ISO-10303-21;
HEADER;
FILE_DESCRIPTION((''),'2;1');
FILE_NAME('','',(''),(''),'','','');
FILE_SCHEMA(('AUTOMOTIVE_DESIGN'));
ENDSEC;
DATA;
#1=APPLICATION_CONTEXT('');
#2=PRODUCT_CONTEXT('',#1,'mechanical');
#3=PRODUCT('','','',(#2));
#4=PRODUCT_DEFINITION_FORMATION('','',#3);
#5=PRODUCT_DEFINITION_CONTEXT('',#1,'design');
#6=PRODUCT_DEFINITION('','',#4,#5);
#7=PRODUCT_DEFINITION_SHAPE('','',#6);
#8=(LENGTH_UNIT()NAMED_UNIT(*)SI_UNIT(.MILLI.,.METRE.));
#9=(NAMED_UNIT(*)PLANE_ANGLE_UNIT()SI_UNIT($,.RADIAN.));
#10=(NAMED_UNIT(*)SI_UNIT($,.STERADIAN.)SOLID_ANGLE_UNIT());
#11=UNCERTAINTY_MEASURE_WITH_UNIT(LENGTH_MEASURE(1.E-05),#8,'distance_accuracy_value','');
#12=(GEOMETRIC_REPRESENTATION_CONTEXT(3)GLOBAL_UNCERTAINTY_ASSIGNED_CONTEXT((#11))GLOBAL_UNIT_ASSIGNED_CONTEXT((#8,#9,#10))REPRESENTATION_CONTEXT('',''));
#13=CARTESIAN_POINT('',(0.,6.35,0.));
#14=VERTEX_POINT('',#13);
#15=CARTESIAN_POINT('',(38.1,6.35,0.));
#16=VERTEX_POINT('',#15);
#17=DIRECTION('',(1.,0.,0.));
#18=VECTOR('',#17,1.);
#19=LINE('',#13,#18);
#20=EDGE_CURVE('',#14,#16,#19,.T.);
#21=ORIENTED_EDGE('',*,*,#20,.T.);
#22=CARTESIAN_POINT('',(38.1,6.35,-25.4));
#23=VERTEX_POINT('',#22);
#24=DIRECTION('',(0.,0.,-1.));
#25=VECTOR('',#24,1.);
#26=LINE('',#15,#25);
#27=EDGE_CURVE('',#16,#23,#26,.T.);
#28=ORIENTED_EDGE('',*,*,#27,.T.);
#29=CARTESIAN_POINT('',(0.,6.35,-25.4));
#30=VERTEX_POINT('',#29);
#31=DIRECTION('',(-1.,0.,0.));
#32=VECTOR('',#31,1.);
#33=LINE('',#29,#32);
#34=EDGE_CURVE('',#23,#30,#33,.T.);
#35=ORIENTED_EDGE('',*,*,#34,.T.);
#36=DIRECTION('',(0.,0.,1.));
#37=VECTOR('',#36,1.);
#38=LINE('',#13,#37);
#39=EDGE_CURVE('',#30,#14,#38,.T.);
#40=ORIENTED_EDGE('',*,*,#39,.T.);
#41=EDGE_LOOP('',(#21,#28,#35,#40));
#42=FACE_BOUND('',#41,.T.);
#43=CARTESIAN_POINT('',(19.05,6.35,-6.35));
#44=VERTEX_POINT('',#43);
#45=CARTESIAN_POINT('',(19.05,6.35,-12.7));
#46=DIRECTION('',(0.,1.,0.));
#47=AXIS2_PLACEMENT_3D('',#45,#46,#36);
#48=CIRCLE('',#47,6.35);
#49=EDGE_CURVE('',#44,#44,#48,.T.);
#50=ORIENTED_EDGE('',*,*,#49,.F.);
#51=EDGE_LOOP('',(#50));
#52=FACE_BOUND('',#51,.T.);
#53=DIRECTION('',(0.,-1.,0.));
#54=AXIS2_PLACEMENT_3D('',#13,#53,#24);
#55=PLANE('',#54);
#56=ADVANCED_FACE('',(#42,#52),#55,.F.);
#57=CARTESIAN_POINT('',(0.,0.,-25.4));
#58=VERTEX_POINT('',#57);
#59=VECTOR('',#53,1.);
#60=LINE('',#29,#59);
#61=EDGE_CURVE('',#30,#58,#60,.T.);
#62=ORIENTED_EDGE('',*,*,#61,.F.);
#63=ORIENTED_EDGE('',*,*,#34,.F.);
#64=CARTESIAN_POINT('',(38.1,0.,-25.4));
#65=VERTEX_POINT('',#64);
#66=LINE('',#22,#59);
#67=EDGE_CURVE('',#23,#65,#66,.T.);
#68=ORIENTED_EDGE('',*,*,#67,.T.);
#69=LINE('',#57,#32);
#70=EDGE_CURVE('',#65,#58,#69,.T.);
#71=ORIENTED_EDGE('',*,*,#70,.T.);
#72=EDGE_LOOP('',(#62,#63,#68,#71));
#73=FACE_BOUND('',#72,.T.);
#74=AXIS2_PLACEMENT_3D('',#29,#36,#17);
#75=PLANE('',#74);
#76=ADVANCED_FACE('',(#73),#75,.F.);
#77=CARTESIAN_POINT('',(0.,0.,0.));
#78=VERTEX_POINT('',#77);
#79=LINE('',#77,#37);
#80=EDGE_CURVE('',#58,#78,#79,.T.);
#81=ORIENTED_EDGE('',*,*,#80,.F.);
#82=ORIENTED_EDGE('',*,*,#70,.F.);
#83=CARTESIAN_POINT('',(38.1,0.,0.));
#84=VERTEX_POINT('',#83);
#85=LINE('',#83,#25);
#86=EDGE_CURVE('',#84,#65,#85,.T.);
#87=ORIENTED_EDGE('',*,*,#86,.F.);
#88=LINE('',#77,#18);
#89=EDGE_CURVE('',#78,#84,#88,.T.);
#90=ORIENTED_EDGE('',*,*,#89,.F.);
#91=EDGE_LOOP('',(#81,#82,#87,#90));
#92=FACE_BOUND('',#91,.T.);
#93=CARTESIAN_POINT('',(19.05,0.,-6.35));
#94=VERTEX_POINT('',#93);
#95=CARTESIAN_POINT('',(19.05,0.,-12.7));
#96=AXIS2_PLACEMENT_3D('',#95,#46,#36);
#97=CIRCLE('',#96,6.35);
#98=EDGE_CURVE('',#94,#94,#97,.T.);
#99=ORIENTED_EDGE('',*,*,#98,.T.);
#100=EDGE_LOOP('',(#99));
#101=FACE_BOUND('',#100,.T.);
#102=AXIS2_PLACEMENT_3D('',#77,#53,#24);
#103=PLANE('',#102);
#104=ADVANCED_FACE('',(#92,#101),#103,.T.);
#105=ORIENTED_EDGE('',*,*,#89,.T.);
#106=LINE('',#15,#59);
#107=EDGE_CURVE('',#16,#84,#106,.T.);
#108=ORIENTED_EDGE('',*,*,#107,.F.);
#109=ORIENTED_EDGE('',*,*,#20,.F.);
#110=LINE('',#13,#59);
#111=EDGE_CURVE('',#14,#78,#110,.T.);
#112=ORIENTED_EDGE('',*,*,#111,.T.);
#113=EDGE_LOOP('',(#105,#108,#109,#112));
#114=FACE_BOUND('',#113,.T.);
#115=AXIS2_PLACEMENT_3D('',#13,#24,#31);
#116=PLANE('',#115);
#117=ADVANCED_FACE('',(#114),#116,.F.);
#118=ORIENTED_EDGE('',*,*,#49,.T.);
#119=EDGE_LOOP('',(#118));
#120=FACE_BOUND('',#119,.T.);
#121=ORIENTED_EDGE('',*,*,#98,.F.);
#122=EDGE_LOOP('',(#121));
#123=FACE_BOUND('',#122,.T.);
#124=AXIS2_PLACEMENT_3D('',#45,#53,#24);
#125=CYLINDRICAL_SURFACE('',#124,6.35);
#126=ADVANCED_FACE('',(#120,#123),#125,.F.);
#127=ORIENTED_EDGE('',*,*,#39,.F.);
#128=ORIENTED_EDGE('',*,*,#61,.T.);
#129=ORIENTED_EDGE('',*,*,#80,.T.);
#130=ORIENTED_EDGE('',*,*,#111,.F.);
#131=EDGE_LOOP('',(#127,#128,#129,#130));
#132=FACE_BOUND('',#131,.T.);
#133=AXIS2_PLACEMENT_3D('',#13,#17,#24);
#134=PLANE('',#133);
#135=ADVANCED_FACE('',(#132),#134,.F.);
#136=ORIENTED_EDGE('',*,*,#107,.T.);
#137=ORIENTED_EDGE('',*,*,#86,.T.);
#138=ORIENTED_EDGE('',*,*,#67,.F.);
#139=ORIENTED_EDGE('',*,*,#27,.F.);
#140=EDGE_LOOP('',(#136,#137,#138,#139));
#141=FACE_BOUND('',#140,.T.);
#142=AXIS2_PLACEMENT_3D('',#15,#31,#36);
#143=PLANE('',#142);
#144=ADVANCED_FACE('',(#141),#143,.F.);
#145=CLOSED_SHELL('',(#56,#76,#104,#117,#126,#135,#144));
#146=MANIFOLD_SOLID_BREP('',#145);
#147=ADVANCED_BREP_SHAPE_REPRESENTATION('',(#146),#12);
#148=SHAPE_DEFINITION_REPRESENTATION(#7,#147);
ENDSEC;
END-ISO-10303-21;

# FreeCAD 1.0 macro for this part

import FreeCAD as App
import Part
import Sketcher

V = App.Vector
Q = App.Units.Quantity


def add_polygon(sketch, points):
    """Adds a closed chain of lines whose ends are joined by coincident constraints."""
    first, n = sketch.GeometryCount, len(points)
    for a, b in zip(points, points[1:] + points[:1]):
        sketch.addGeometry(Part.LineSegment(App.Vector(*a, 0), App.Vector(*b, 0)), False)
    for i in range(n):
        sketch.addConstraint(Sketcher.Constraint("Coincident", first + i, 2, first + (i + 1) % n, 1))

doc = App.newDocument("Part")
body = doc.addObject("PartDesign::Body", "Body")

sketch1 = body.newObject("Sketcher::SketchObject", "Sketch")
sketch1.AttachmentSupport = (doc.getObject("XZ_Plane"), [""])
sketch1.MapMode = "FlatFace"
add_polygon(sketch1, [(0, -25.4), (0, 0), (38.1, 0), (38.1, -25.4)])
sketch1.addGeometry(Part.Circle(V(19.05, -12.7, 0), V(0, 0, 1), 6.35), False)
sketch1.addConstraint(Sketcher.Constraint("Vertical", 0))
sketch1.addConstraint(Sketcher.Constraint("Horizontal", 1))
sketch1.addConstraint(Sketcher.Constraint("Vertical", 2))
sketch1.addConstraint(Sketcher.Constraint("Horizontal", 3))
sketch1.addConstraint(Sketcher.Constraint("Coincident", 0, 2, -1, 1))
sketch1.addConstraint(Sketcher.Constraint("Diameter", 4, Q("0.5 in")))
sketch1.addConstraint(Sketcher.Constraint("DistanceY", 0, 1, 0, 2, Q("1 in")))
sketch1.addConstraint(Sketcher.Constraint("DistanceX", 1, 1, 1, 2, Q("1.5 in")))
sketch1.addConstraint(Sketcher.Constraint("DistanceY", 4, 3, -1, 1, Q("0.5 in")))
sketch1.addConstraint(Sketcher.Constraint("DistanceX", -1, 1, 4, 3, Q("0.75 in")))
pad1 = body.newObject("PartDesign::Pad", "Pad")
pad1.Profile = sketch1
pad1.Length = Q("0.25 in")
pad1.Reversed = True

doc.recompute()
